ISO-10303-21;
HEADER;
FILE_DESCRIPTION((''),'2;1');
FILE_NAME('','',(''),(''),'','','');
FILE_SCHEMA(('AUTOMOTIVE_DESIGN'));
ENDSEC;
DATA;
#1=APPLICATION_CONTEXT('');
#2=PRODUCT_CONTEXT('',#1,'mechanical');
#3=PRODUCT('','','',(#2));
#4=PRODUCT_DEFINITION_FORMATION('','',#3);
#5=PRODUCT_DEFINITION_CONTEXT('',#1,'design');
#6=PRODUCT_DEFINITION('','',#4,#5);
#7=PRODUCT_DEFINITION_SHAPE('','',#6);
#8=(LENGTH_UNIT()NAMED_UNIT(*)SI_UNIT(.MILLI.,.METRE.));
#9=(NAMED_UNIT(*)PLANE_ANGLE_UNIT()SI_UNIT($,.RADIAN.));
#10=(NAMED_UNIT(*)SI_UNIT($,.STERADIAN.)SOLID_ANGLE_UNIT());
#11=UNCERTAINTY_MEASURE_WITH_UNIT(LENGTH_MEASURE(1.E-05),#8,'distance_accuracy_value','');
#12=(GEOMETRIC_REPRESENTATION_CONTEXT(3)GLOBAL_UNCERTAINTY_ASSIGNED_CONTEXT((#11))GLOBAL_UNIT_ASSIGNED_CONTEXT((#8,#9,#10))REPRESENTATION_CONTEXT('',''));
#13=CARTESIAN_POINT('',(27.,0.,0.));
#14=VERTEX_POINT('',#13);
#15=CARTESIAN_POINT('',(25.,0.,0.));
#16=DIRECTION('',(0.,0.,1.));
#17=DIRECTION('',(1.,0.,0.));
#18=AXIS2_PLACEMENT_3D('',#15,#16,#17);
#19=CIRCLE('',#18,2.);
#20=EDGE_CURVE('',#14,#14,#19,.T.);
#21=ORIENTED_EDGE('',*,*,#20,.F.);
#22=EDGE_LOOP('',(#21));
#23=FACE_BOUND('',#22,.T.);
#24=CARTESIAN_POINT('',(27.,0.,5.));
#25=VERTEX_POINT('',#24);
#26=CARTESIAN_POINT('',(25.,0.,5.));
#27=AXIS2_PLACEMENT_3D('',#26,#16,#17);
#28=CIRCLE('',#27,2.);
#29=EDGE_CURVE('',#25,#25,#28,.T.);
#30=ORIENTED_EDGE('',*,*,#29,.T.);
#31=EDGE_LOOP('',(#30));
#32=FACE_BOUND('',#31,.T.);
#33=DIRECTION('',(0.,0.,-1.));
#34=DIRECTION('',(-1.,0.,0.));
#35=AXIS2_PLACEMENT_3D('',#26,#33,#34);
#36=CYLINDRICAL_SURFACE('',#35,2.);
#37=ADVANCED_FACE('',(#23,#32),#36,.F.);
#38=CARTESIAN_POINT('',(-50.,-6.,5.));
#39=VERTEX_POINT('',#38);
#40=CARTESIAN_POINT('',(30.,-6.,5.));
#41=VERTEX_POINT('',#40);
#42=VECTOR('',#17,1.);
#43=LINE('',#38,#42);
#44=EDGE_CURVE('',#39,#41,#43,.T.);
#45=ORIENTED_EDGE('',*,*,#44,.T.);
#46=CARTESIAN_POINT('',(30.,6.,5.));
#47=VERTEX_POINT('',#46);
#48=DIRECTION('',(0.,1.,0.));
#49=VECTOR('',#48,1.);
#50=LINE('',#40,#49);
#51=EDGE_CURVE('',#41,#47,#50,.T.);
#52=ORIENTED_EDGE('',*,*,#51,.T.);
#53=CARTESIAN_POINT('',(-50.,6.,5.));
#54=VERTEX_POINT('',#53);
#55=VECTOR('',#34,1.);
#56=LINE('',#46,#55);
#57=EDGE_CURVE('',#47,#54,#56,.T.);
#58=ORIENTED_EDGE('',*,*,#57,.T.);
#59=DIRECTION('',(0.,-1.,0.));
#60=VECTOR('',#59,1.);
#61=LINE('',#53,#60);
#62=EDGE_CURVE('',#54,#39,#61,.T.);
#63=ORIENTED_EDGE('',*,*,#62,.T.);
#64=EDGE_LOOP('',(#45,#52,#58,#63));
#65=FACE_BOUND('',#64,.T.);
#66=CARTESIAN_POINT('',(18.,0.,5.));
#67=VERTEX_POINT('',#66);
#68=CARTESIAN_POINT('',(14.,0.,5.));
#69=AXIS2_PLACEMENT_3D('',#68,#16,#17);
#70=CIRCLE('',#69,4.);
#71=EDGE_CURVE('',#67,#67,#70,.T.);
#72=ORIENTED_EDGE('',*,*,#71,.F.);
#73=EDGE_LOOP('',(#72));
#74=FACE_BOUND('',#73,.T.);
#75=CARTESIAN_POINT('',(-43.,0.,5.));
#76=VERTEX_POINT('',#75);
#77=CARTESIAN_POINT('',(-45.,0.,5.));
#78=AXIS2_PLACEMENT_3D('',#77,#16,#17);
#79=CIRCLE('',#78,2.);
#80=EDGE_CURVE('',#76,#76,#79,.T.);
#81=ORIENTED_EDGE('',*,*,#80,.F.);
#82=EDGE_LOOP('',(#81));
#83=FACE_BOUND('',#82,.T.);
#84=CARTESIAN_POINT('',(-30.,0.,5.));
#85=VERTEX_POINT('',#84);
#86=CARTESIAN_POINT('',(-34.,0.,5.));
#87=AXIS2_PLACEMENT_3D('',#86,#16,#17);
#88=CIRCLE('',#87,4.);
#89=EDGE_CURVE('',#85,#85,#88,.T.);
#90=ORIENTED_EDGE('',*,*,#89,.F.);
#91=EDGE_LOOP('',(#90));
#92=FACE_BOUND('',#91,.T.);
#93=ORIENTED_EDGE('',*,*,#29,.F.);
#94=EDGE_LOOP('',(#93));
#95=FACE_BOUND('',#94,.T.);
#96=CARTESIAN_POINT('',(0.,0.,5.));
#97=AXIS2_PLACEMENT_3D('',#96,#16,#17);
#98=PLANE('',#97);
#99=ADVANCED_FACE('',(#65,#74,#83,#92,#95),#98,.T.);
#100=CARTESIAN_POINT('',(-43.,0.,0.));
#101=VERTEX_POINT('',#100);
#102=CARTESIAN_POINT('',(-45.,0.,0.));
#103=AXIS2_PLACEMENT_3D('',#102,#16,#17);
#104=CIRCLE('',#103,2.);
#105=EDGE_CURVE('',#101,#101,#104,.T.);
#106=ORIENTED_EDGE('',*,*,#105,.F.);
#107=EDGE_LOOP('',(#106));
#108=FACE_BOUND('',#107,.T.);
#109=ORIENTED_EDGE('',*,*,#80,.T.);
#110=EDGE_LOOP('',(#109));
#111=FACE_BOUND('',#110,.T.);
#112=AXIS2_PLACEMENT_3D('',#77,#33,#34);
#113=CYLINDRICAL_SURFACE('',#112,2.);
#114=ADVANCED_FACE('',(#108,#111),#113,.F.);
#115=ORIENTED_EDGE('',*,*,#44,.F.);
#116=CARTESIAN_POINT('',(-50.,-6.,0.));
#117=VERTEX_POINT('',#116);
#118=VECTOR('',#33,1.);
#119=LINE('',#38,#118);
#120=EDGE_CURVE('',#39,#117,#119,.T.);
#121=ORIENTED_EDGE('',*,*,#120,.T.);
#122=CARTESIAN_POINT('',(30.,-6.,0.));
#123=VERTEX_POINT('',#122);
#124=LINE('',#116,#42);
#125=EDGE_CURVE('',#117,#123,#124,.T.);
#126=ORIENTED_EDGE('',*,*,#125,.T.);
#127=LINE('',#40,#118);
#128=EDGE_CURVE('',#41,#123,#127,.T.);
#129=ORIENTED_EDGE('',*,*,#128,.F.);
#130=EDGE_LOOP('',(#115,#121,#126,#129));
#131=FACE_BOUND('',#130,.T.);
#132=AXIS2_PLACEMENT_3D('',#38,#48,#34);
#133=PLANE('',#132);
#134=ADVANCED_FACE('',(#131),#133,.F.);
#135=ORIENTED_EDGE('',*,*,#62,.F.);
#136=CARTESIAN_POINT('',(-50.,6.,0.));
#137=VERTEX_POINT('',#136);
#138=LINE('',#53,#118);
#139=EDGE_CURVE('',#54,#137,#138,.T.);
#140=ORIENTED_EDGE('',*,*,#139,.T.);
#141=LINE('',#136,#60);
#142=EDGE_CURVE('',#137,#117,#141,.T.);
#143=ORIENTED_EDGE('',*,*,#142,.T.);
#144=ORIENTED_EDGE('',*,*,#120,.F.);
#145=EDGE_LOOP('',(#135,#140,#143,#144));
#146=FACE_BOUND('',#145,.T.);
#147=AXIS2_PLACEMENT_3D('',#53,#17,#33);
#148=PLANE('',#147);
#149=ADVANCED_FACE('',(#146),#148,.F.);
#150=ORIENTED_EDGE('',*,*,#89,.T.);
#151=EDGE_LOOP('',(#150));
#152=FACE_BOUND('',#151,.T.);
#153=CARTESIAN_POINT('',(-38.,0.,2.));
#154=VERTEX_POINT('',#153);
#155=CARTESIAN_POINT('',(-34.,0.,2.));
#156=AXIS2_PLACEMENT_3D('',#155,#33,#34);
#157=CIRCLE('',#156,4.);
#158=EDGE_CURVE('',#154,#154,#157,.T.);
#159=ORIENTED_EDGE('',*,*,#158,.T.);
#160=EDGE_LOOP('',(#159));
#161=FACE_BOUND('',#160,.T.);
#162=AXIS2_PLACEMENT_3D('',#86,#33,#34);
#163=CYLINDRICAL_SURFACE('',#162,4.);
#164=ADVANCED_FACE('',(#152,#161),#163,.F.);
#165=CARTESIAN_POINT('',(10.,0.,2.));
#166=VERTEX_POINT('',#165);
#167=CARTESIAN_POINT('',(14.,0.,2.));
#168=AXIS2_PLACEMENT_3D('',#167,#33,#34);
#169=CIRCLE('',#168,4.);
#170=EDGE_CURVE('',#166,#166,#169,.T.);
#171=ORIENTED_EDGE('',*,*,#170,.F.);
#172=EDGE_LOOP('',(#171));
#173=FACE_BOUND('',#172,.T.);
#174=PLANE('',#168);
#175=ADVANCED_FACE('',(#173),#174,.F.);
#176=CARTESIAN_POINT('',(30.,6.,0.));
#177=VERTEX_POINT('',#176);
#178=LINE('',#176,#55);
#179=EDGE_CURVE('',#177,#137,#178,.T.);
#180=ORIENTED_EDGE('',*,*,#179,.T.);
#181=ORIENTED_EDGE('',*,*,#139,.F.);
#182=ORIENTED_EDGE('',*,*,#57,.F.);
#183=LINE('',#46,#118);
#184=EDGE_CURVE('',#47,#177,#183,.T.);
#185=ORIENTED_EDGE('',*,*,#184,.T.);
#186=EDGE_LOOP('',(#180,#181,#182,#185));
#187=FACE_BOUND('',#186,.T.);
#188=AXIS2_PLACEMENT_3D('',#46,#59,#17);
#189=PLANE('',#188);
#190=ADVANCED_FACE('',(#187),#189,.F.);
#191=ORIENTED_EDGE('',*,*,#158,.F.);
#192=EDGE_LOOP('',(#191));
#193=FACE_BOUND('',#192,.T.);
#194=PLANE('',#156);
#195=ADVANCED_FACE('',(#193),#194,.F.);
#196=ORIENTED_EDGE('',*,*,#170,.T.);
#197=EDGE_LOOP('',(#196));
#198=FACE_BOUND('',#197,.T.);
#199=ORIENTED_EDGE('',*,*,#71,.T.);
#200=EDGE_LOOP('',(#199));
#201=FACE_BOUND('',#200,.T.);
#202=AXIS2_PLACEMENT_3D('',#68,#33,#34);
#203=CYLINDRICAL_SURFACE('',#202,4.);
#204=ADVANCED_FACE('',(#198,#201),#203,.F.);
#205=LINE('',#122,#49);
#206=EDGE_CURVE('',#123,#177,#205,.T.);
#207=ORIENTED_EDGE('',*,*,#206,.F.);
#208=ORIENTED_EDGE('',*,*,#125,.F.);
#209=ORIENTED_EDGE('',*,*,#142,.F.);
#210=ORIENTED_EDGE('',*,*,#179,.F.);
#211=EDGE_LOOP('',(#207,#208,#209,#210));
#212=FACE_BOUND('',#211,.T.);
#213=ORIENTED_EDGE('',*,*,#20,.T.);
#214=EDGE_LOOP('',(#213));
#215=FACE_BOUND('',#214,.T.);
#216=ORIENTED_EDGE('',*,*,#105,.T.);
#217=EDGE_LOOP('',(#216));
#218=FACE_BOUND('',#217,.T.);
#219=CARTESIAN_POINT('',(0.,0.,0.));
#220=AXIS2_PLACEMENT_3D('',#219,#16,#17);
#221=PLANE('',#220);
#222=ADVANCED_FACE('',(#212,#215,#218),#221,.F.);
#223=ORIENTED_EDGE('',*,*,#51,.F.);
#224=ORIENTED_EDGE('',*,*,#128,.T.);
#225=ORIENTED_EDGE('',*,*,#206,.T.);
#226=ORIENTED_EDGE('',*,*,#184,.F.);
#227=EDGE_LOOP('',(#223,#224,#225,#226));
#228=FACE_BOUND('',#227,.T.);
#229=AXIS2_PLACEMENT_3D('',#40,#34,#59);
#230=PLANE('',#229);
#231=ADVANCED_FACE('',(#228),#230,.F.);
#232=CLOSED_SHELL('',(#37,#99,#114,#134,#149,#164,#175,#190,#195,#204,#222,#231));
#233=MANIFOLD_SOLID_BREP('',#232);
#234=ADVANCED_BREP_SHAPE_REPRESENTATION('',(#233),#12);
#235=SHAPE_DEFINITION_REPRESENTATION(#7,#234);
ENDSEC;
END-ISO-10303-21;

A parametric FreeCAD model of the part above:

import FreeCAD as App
import Part
import Sketcher


def add_polygon(sketch, points):
    """Adds a closed chain of lines whose ends are joined by coincident constraints."""
    first, n = sketch.GeometryCount, len(points)
    for a, b in zip(points, points[1:] + points[:1]):
        sketch.addGeometry(Part.LineSegment(App.Vector(*a, 0), App.Vector(*b, 0)), False)
    for i in range(n):
        sketch.addConstraint(Sketcher.Constraint("Coincident", first + i, 2, first + (i + 1) % n, 1))

doc = App.newDocument("Part")
body = doc.addObject("PartDesign::Body", "Body")

sketch1 = body.newObject("Sketcher::SketchObject", "Sketch")
sketch1.AttachmentSupport = (doc.getObject("XY_Plane"), [""])
sketch1.MapMode = "FlatFace"
add_polygon(sketch1, [(-50, 6), (-50, -6), (30, -6), (30, 6)])
sketch1.addGeometry(Part.Circle(App.Vector(-45, 0, 0), App.Vector(0, 0, 1), 2), False)
sketch1.addGeometry(Part.Circle(App.Vector(-34, 0, 0), App.Vector(0, 0, 1), 4), False)
sketch1.addGeometry(Part.Circle(App.Vector(14, 0, 0), App.Vector(0, 0, 1), 4), False)
sketch1.addGeometry(Part.Circle(App.Vector(25, 0, 0), App.Vector(0, 0, 1), 2), False)
sketch1.addConstraint(Sketcher.Constraint("Vertical", 0))
sketch1.addConstraint(Sketcher.Constraint("Horizontal", 1))
sketch1.addConstraint(Sketcher.Constraint("Vertical", 2))
sketch1.addConstraint(Sketcher.Constraint("Horizontal", 3))
sketch1.addConstraint(Sketcher.Constraint("Equal", 5, 6))
sketch1.addConstraint(Sketcher.Constraint("Equal", 4, 7))
sketch1.addConstraint(Sketcher.Constraint("PointOnObject", 4, 3, -1))
sketch1.addConstraint(Sketcher.Constraint("PointOnObject", 5, 3, -1))
sketch1.addConstraint(Sketcher.Constraint("PointOnObject", 6, 3, -1))
sketch1.addConstraint(Sketcher.Constraint("PointOnObject", 7, 3, -1))
sketch1.addConstraint(Sketcher.Constraint("Diameter", 4, 4.0))
sketch1.addConstraint(Sketcher.Constraint("Diameter", 5, 8.0))
sketch1.addConstraint(Sketcher.Constraint("DistanceX", 1, 1, 1, 2, 80.0))
sketch1.addConstraint(Sketcher.Constraint("DistanceY", 0, 2, 0, 1, 12.0))
sketch1.addConstraint(Sketcher.Constraint("DistanceX", 4, 3, -1, 1, 45.0))
sketch1.addConstraint(Sketcher.Constraint("DistanceX", 5, 3, -1, 1, 34.0))
sketch1.addConstraint(Sketcher.Constraint("DistanceX", -1, 1, 6, 3, 14.0))
sketch1.addConstraint(Sketcher.Constraint("DistanceX", -1, 1, 7, 3, 25.0))
sketch1.addConstraint(Sketcher.Constraint("DistanceX", 0, 2, -1, 1, 50.0))
sketch1.addConstraint(Sketcher.Constraint("DistanceY", 0, 2, -1, 1, 6.0))
pad1 = body.newObject("PartDesign::Pad", "Pad")
pad1.Profile = sketch1
pad1.Length = 5

sketch2 = body.newObject("Sketcher::SketchObject", "Sketch001")
sketch2.AttachmentSupport = (doc.getObject("XY_Plane"), [""])
sketch2.MapMode = "FlatFace"
sketch2.addGeometry(Part.Circle(App.Vector(-34, 0, 0), App.Vector(0, 0, 1), 4), False)
sketch2.addGeometry(Part.Circle(App.Vector(14, 0, 0), App.Vector(0, 0, 1), 4), False)
sketch2.addConstraint(Sketcher.Constraint("Equal", 0, 1))
sketch2.addConstraint(Sketcher.Constraint("PointOnObject", 0, 3, -1))
sketch2.addConstraint(Sketcher.Constraint("PointOnObject", 1, 3, -1))
sketch2.addConstraint(Sketcher.Constraint("Diameter", 0, 8.0))
sketch2.addConstraint(Sketcher.Constraint("DistanceX", 0, 3, -1, 1, 34.0))
sketch2.addConstraint(Sketcher.Constraint("DistanceX", -1, 1, 1, 3, 14.0))
pad2 = body.newObject("PartDesign::Pad", "Pad001")
pad2.Profile = sketch2
pad2.Length = 2

doc.recompute()
